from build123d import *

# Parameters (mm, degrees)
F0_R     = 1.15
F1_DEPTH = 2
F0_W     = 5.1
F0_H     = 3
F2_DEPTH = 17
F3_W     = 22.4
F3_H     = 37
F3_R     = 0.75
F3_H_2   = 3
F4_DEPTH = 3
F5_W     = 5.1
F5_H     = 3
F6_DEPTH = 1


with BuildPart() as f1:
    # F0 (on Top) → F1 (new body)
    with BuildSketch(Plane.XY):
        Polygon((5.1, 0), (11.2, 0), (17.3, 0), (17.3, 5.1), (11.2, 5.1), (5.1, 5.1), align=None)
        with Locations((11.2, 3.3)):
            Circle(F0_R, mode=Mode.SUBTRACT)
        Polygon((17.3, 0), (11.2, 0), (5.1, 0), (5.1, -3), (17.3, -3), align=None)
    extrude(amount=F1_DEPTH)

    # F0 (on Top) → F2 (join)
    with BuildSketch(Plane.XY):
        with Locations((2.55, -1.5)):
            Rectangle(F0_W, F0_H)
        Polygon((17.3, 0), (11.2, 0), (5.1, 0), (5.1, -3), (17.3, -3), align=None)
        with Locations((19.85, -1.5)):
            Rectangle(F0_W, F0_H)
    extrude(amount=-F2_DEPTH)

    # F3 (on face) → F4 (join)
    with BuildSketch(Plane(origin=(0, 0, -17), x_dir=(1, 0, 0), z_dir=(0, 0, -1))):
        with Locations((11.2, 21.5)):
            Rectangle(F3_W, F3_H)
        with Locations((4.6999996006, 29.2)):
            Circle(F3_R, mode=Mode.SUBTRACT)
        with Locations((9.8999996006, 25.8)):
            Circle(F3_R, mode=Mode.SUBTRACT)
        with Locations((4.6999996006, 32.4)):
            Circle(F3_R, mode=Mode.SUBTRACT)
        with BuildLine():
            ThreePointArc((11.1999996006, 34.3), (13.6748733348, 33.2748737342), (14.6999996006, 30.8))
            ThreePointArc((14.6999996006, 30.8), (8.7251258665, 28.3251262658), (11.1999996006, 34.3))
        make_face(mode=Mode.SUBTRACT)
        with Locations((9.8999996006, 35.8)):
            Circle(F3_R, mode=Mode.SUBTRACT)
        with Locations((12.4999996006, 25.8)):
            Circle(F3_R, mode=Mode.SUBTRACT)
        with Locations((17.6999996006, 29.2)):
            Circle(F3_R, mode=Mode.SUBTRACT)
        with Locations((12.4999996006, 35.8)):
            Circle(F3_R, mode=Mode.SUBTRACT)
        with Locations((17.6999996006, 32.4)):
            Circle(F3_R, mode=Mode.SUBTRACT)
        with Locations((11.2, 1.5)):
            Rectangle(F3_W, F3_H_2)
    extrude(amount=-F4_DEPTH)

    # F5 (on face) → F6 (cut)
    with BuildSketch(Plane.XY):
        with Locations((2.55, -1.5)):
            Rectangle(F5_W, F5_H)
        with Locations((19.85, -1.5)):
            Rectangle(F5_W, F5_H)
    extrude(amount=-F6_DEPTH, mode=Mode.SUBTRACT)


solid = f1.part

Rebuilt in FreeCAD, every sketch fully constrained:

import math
import FreeCAD as App
import Part
import Sketcher

V = App.Vector
Q = App.Units.Quantity

doc = App.newDocument("Part")
body = doc.addObject("PartDesign::Body", "Body")

# Sketch on XY plane
sketch1 = body.newObject("Sketcher::SketchObject", "Sketch")
sketch1.AttachmentSupport = (doc.getObject("XY_Plane"), [""])
sketch1.MapMode = "FlatFace"
sketch1.addGeometry([
    Part.LineSegment(V(5.1, 5.1, 0), V(5.1, -3, 0)),  # 0
    Part.LineSegment(V(5.1, -3, 0), V(17.3, -3, 0)),  # 1
    Part.LineSegment(V(17.3, -3, 0), V(17.3, 5.1, 0)),  # 2
    Part.LineSegment(V(17.3, 5.1, 0), V(5.1, 5.1, 0)),  # 3
    Part.Circle(V(11.2, 3.3, 0), V(0, 0, 1), 1.15),  # 4
], False)
sketch1.addConstraint([
    Sketcher.Constraint("Coincident", 0, 2, 1, 1),
    Sketcher.Constraint("Coincident", 1, 2, 2, 1),
    Sketcher.Constraint("Coincident", 2, 2, 3, 1),
    Sketcher.Constraint("Coincident", 3, 2, 0, 1),
    Sketcher.Constraint("Vertical", 0),
    Sketcher.Constraint("Horizontal", 1),
    Sketcher.Constraint("Vertical", 2),
    Sketcher.Constraint("Horizontal", 3),
    Sketcher.Constraint("Diameter", 4, Q("2.3 mm")),
    Sketcher.Constraint("DistanceX", 1, 1, 1, 2, Q("12.2 mm")),
    Sketcher.Constraint("DistanceY", 0, 2, 0, 1, Q("8.1 mm")),
    Sketcher.Constraint("DistanceY", 0, 2, -1, 1, Q("3 mm")),
    Sketcher.Constraint("DistanceX", -1, 1, 4, 3, Q("11.2 mm")),
    Sketcher.Constraint("DistanceY", -1, 1, 4, 3, Q("3.3 mm")),
    Sketcher.Constraint("DistanceX", -1, 1, 0, 2, Q("5.1 mm")),
])
pad1 = body.newObject("PartDesign::Pad", "Pad")
pad1.Profile = sketch1
pad1.Length = 2

# Sketch on XY plane
sketch2 = body.newObject("Sketcher::SketchObject", "Sketch001")
sketch2.AttachmentSupport = (doc.getObject("XY_Plane"), [""])
sketch2.MapMode = "FlatFace"
sketch2.addGeometry([
    Part.LineSegment(V(0, 0, 0), V(0, -3, 0)),
    Part.LineSegment(V(0, -3, 0), V(22.4, -3, 0)),
    Part.LineSegment(V(22.4, -3, 0), V(22.4, 0, 0)),
    Part.LineSegment(V(22.4, 0, 0), V(0, 0, 0)),
], False)
sketch2.addConstraint([
    Sketcher.Constraint("Coincident", 0, 2, 1, 1),
    Sketcher.Constraint("Coincident", 1, 2, 2, 1),
    Sketcher.Constraint("Coincident", 2, 2, 3, 1),
    Sketcher.Constraint("Coincident", 3, 2, 0, 1),
    Sketcher.Constraint("Vertical", 0),
    Sketcher.Constraint("Horizontal", 1),
    Sketcher.Constraint("Vertical", 2),
    Sketcher.Constraint("Horizontal", 3),
    Sketcher.Constraint("Coincident", 3, 2, -1, 1),
    Sketcher.Constraint("DistanceY", 0, 2, 0, 1, Q("3 mm")),
    Sketcher.Constraint("DistanceX", 1, 1, 1, 2, Q("22.4 mm")),
])
pad2 = body.newObject("PartDesign::Pad", "Pad001")
pad2.Profile = sketch2
pad2.Length = 17
pad2.Reversed = True

# Sketch on XY plane
sketch3 = body.newObject("Sketcher::SketchObject", "Sketch002")
sketch3.AttachmentSupport = (doc.getObject("XY_Plane"), [""])
sketch3.MapMode = "FlatFace"
sketch3.AttachmentOffset = App.Placement(V(0, 0, -17), App.Rotation())
sketch3.addGeometry([
    Part.LineSegment(V(0, -40, 0), V(0, 0, 0)),  # 0
    Part.LineSegment(V(0, 0, 0), V(22.4, 0, 0)),  # 1
    Part.LineSegment(V(22.4, 0, 0), V(22.4, -40, 0)),  # 2
    Part.LineSegment(V(22.4, -40, 0), V(0, -40, 0)),  # 3
    Part.Circle(V(9.9, -25.8, 0), V(0, 0, 1), 0.75),  # 4
    Part.Circle(V(4.7, -29.2, 0), V(0, 0, 1), 0.75),  # 5
    Part.Circle(V(12.5, -25.8, 0), V(0, 0, 1), 0.75),  # 6
    Part.Circle(V(17.7, -29.2, 0), V(0, 0, 1), 0.75),  # 7
    Part.Circle(V(4.7, -32.4, 0), V(0, 0, 1), 0.75),  # 8
    Part.Circle(V(9.9, -35.8, 0), V(0, 0, 1), 0.75),  # 9
    Part.ArcOfCircle(Part.Circle(V(11.2, -30.8, 0), V(0, 0, 1), 3.5), math.radians(0), math.radians(270)),  # 10
    Part.ArcOfCircle(Part.Circle(V(11.2, -30.8, 0), V(0, 0, 1), 3.5), math.radians(-90), math.radians(0)),  # 11
    Part.Circle(V(17.7, -32.4, 0), V(0, 0, 1), 0.75),  # 12
    Part.Circle(V(12.5, -35.8, 0), V(0, 0, 1), 0.75),  # 13
], False)
sketch3.addConstraint([
    Sketcher.Constraint("Coincident", 0, 2, 1, 1),
    Sketcher.Constraint("Coincident", 1, 2, 2, 1),
    Sketcher.Constraint("Coincident", 2, 2, 3, 1),
    Sketcher.Constraint("Coincident", 3, 2, 0, 1),
    Sketcher.Constraint("Tangent", 10, 1, 11, 2),
    Sketcher.Constraint("Coincident", 11, 1, 10, 2),
    Sketcher.Constraint("Vertical", 0),
    Sketcher.Constraint("Horizontal", 1),
    Sketcher.Constraint("Vertical", 2),
    Sketcher.Constraint("Horizontal", 3),
    Sketcher.Constraint("Coincident", 0, 2, -1, 1),
    Sketcher.Constraint("Equal", 4, 5),
    Sketcher.Constraint("Equal", 5, 6),
    Sketcher.Constraint("Equal", 6, 7),
    Sketcher.Constraint("Equal", 7, 8),
    Sketcher.Constraint("Equal", 8, 9),
    Sketcher.Constraint("Equal", 9, 12),
    Sketcher.Constraint("Equal", 12, 13),
    Sketcher.Constraint("Horizontal", 4, 3, 6, 3),
    Sketcher.Constraint("Horizontal", 5, 3, 7, 3),
    Sketcher.Constraint("Horizontal", 8, 3, 12, 3),
    Sketcher.Constraint("Horizontal", 9, 3, 13, 3),
    Sketcher.Constraint("Horizontal", 11, 3, 10, 1),
    Sketcher.Constraint("Vertical", 5, 3, 8, 3),
    Sketcher.Constraint("Vertical", 4, 3, 9, 3),
    Sketcher.Constraint("Vertical", 7, 3, 12, 3),
    Sketcher.Constraint("Vertical", 6, 3, 13, 3),
    Sketcher.Constraint("Vertical", 10, 3, 11, 1),
    Sketcher.Constraint("Diameter", 4, Q("1.5 mm")),
    Sketcher.Constraint("Radius", 10, Q("3.5 mm")),
    Sketcher.Constraint("DistanceY", 0, 1, 0, 2, Q("40 mm")),
    Sketcher.Constraint("DistanceX", 1, 1, 1, 2, Q("22.4 mm")),
    Sketcher.Constraint("DistanceX", 5, 3, 7, 3, Q("13 mm")),
    Sketcher.Constraint("DistanceY", 9, 3, 4, 3, Q("10 mm")),
    Sketcher.Constraint("DistanceY", 9, 3, 10, 3, Q("5 mm")),
    Sketcher.Constraint("DistanceX", 10, 1, 12, 3, Q("3 mm")),
    Sketcher.Constraint("DistanceX", -1, 1, 4, 3, Q("9.9 mm")),
    Sketcher.Constraint("DistanceY", 4, 3, -1, 1, Q("25.8 mm")),
    Sketcher.Constraint("DistanceX", -1, 1, 5, 3, Q("4.7 mm")),
    Sketcher.Constraint("DistanceY", 5, 3, -1, 1, Q("29.2 mm")),
    Sketcher.Constraint("DistanceX", -1, 1, 6, 3, Q("12.5 mm")),
    Sketcher.Constraint("DistanceY", 8, 3, -1, 1, Q("32.4 mm")),
])
pad3 = body.newObject("PartDesign::Pad", "Pad002")
pad3.Profile = sketch3
pad3.Length = 3

# Sketch on XY plane
sketch4 = body.newObject("Sketcher::SketchObject", "Sketch003")
sketch4.AttachmentSupport = (doc.getObject("XY_Plane"), [""])
sketch4.MapMode = "FlatFace"
sketch4.addGeometry([
    Part.LineSegment(V(0, 0, 0), V(0, -3, 0)),  # 0
    Part.LineSegment(V(0, -3, 0), V(5.1, -3, 0)),  # 1
    Part.LineSegment(V(5.1, -3, 0), V(5.1, 0, 0)),  # 2
    Part.LineSegment(V(5.1, 0, 0), V(0, 0, 0)),  # 3
    Part.LineSegment(V(17.3, 0, 0), V(17.3, -3, 0)),  # 4
    Part.LineSegment(V(17.3, -3, 0), V(22.4, -3, 0)),  # 5
    Part.LineSegment(V(22.4, -3, 0), V(22.4, 0, 0)),  # 6
    Part.LineSegment(V(22.4, 0, 0), V(17.3, 0, 0)),  # 7
], False)
sketch4.addConstraint([
    Sketcher.Constraint("Coincident", 0, 2, 1, 1),
    Sketcher.Constraint("Coincident", 1, 2, 2, 1),
    Sketcher.Constraint("Coincident", 2, 2, 3, 1),
    Sketcher.Constraint("Coincident", 3, 2, 0, 1),
    Sketcher.Constraint("Coincident", 4, 2, 5, 1),
    Sketcher.Constraint("Coincident", 5, 2, 6, 1),
    Sketcher.Constraint("Coincident", 6, 2, 7, 1),
    Sketcher.Constraint("Coincident", 7, 2, 4, 1),
    Sketcher.Constraint("Vertical", 0),
    Sketcher.Constraint("Horizontal", 1),
    Sketcher.Constraint("Vertical", 2),
    Sketcher.Constraint("Horizontal", 3),
    Sketcher.Constraint("Vertical", 4),
    Sketcher.Constraint("Horizontal", 5),
    Sketcher.Constraint("Vertical", 6),
    Sketcher.Constraint("Horizontal", 7),
    Sketcher.Constraint("Coincident", 3, 2, -1, 1),
    Sketcher.Constraint("PointOnObject", 6, 2, -1),
    Sketcher.Constraint("Horizontal", 1, 2, 4, 2),
    Sketcher.Constraint("Equal", 3, 5),
    Sketcher.Constraint("DistanceY", 0, 2, 0, 1, Q("3 mm")),
    Sketcher.Constraint("DistanceX", 1, 1, 1, 2, Q("5.1 mm")),
    Sketcher.Constraint("DistanceX", -1, 1, 4, 2, Q("17.3 mm")),
])
pocket1 = body.newObject("PartDesign::Pocket", "Pocket")
pocket1.Profile = sketch4
pocket1.Length = 1

doc.recompute()
